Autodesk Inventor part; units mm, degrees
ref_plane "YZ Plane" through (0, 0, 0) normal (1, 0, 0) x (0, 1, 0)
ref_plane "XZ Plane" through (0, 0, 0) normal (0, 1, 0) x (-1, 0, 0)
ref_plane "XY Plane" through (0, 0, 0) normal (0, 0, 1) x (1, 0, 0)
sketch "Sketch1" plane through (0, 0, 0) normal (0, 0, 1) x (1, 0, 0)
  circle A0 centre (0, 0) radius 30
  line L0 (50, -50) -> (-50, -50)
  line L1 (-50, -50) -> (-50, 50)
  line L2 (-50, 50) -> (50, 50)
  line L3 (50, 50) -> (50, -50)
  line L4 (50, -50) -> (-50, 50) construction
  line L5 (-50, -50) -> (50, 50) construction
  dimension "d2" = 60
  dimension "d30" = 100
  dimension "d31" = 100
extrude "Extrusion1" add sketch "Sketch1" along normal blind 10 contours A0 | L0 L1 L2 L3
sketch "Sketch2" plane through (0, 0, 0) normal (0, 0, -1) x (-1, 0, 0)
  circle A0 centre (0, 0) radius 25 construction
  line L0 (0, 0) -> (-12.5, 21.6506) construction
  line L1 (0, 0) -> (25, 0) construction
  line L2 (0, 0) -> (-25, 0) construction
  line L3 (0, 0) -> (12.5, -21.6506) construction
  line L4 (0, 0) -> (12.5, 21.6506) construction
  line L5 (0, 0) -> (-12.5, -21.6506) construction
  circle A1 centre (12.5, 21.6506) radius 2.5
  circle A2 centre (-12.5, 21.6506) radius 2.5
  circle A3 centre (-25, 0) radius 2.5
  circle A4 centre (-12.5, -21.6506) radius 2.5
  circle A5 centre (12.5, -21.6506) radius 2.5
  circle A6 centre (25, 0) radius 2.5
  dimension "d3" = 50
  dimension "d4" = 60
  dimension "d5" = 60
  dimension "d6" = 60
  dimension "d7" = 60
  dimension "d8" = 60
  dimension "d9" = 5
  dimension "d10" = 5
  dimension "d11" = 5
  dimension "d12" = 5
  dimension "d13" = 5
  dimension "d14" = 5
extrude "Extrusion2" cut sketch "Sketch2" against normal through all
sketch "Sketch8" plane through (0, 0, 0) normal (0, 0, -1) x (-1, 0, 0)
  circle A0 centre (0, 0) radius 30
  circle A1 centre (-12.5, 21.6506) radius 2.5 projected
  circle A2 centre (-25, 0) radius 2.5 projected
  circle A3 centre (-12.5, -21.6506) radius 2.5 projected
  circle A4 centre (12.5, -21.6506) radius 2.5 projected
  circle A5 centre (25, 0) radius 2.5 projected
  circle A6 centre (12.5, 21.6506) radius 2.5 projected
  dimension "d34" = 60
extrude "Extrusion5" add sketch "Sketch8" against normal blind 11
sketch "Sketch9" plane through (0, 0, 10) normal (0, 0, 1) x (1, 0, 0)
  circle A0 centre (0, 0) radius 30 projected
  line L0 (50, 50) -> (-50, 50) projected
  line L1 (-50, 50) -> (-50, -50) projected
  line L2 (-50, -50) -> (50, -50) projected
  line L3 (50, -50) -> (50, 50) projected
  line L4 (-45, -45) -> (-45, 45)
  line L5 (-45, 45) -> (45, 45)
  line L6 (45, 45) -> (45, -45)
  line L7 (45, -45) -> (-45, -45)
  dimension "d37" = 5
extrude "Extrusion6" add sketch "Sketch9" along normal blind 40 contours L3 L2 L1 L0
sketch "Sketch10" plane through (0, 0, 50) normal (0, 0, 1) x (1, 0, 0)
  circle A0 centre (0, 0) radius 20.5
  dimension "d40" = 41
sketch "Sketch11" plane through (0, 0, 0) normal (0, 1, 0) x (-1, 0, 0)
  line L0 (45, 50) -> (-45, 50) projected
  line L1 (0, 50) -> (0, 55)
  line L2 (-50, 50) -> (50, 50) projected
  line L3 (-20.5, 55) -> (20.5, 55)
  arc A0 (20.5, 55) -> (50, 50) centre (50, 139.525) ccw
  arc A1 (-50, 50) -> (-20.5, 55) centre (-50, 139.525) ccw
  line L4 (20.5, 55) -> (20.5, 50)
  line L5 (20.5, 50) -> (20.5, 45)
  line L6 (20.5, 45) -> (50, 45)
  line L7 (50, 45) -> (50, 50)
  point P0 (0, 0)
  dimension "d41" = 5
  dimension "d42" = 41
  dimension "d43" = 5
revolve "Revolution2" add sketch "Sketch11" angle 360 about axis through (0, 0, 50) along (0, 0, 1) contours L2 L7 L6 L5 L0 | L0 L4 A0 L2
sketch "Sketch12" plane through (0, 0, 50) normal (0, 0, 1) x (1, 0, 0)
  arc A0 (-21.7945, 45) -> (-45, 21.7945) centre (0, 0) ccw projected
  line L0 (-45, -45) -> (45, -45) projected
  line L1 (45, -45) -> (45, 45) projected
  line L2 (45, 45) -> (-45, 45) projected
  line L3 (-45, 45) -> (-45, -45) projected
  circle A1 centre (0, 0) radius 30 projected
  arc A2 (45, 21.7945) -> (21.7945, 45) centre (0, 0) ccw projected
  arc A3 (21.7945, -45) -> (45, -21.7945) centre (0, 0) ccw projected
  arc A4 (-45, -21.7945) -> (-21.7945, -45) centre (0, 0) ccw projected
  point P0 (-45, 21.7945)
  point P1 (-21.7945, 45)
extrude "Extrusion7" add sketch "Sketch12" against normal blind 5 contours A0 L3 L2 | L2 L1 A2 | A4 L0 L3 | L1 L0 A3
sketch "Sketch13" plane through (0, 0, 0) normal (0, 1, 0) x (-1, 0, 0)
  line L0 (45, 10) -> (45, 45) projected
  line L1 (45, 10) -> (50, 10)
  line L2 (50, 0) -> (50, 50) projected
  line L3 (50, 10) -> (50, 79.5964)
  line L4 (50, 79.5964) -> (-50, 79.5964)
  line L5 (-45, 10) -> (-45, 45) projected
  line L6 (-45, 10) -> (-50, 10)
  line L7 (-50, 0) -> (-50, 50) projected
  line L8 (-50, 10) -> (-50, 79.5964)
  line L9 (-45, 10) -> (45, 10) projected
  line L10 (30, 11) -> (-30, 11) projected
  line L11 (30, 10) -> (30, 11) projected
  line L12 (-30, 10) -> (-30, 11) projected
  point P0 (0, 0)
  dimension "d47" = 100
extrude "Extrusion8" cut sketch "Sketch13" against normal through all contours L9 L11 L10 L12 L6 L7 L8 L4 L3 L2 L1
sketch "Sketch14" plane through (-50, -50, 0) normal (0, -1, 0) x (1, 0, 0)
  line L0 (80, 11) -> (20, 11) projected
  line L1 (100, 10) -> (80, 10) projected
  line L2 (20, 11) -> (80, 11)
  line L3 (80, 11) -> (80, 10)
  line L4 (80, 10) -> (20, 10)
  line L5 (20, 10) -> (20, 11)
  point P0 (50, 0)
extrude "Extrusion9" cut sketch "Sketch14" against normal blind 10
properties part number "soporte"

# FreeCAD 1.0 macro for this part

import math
import FreeCAD as App
import Part
import Sketcher


def add_polygon(sketch, points):
    """Adds a closed chain of lines whose ends are joined by coincident constraints."""
    first, n = sketch.GeometryCount, len(points)
    for a, b in zip(points, points[1:] + points[:1]):
        sketch.addGeometry(Part.LineSegment(App.Vector(*a, 0), App.Vector(*b, 0)), False)
    for i in range(n):
        sketch.addConstraint(Sketcher.Constraint("Coincident", first + i, 2, first + (i + 1) % n, 1))

doc = App.newDocument("Part")
body = doc.addObject("PartDesign::Body", "Body")

# Sketch on XY plane
sketch1 = body.newObject("Sketcher::SketchObject", "Sketch")
sketch1.AttachmentSupport = (doc.getObject("XY_Plane"), [""])
sketch1.MapMode = "FlatFace"
add_polygon(sketch1, [(-50, -50), (50, -50), (50, 50), (-50, 50)])  # lines 0-3
sketch1.addConstraint([
    Sketcher.Constraint("Horizontal", 0),
    Sketcher.Constraint("Vertical", 1),
    Sketcher.Constraint("Horizontal", 2),
    Sketcher.Constraint("Vertical", 3),
    Sketcher.Constraint("Symmetric", 0, 2, 2, 2, -1, 1),
    Sketcher.Constraint("Equal", 2, 1),
    Sketcher.Constraint("DistanceX", 0, 1, 0, 2, 100.0),
])
pad1 = body.newObject("PartDesign::Pad", "Pad")
pad1.Profile = sketch1
pad1.Length = 10

# Sketch on XY plane
sketch2 = body.newObject("Sketcher::SketchObject", "Sketch001")
sketch2.AttachmentSupport = (doc.getObject("XY_Plane"), [""])
sketch2.MapMode = "FlatFace"
sketch2.addGeometry([
    Part.Circle(App.Vector(-12.5, 21.7, 0), App.Vector(0, 0, 1), 2.5),  # 0
    Part.Circle(App.Vector(12.5, 21.7, 0), App.Vector(0, 0, 1), 2.5),  # 1
    Part.Circle(App.Vector(25, 0, 0), App.Vector(0, 0, 1), 2.5),  # 2
    Part.Circle(App.Vector(12.5, -21.7, 0), App.Vector(0, 0, 1), 2.5),  # 3
    Part.Circle(App.Vector(-12.5, -21.7, 0), App.Vector(0, 0, 1), 2.5),  # 4
    Part.Circle(App.Vector(-25, 0, 0), App.Vector(0, 0, 1), 2.5),  # 5
], False)
sketch2.addConstraint([
    Sketcher.Constraint("Equal", 0, 1),
    Sketcher.Constraint("Equal", 1, 2),
    Sketcher.Constraint("Equal", 2, 3),
    Sketcher.Constraint("Equal", 3, 4),
    Sketcher.Constraint("Equal", 4, 5),
    Sketcher.Constraint("Symmetric", 0, 3, 3, 3, -1, 1),
    Sketcher.Constraint("Symmetric", 1, 3, 4, 3, -1, 1),
    Sketcher.Constraint("Symmetric", 2, 3, 5, 3, -1, 1),
    Sketcher.Constraint("Symmetric", 0, 3, 1, 3, -2),
    Sketcher.Constraint("PointOnObject", 2, 3, -1),
    Sketcher.Constraint("Diameter", 0, 5.0),
    Sketcher.Constraint("DistanceX", 5, 3, 2, 3, 50.0),
    Sketcher.Constraint("DistanceX", 0, 3, 1, 3, 25.0),
    Sketcher.Constraint("DistanceY", -1, 1, 0, 3, 21.6506),
])
pocket1 = body.newObject("PartDesign::Pocket", "Pocket")
pocket1.Profile = sketch2
pocket1.Type = "ThroughAll"
pocket1.Reversed = True

# Sketch on XY plane
sketch3 = body.newObject("Sketcher::SketchObject", "Sketch002")
sketch3.AttachmentSupport = (doc.getObject("XY_Plane"), [""])
sketch3.MapMode = "FlatFace"
sketch3.addGeometry([
    Part.Circle(App.Vector(0, 0, 0), App.Vector(0, 0, 1), 30),  # 0
    Part.Circle(App.Vector(12.5, -21.7, 0), App.Vector(0, 0, 1), 2.5),  # 1
    Part.Circle(App.Vector(-12.5, -21.7, 0), App.Vector(0, 0, 1), 2.5),  # 2
    Part.Circle(App.Vector(25, 0, 0), App.Vector(0, 0, 1), 2.5),  # 3
    Part.Circle(App.Vector(12.5, 21.7, 0), App.Vector(0, 0, 1), 2.5),  # 4
    Part.Circle(App.Vector(-25, 0, 0), App.Vector(0, 0, 1), 2.5),  # 5
    Part.Circle(App.Vector(-12.5, 21.7, 0), App.Vector(0, 0, 1), 2.5),  # 6
], False)
sketch3.addConstraint([
    Sketcher.Constraint("Coincident", 0, 3, -1, 1),
    Sketcher.Constraint("Equal", 1, 2),
    Sketcher.Constraint("Equal", 2, 3),
    Sketcher.Constraint("Equal", 3, 4),
    Sketcher.Constraint("Equal", 4, 5),
    Sketcher.Constraint("Equal", 5, 6),
    Sketcher.Constraint("Symmetric", 2, 3, 4, 3, -1, 1),
    Sketcher.Constraint("Symmetric", 3, 3, 5, 3, -1, 1),
    Sketcher.Constraint("Symmetric", 1, 3, 6, 3, -1, 1),
    Sketcher.Constraint("Symmetric", 1, 3, 2, 3, -2),
    Sketcher.Constraint("PointOnObject", 3, 3, -1),
    Sketcher.Constraint("Diameter", 0, 60.0),
    Sketcher.Constraint("Diameter", 1, 5.0),
    Sketcher.Constraint("DistanceX", -1, 1, 3, 3, 25.0),
    Sketcher.Constraint("DistanceX", 2, 3, 1, 3, 25.0),
    Sketcher.Constraint("DistanceY", 1, 3, -1, 1, 21.6506),
])
pad2 = body.newObject("PartDesign::Pad", "Pad001")
pad2.Profile = sketch3
pad2.Length = 11

# Sketch on XY plane
sketch4 = body.newObject("Sketcher::SketchObject", "Sketch003")
sketch4.AttachmentSupport = (doc.getObject("XY_Plane"), [""])
sketch4.MapMode = "FlatFace"
sketch4.AttachmentOffset = App.Placement(App.Vector(0, 0, 10), App.Rotation())
add_polygon(sketch4, [(50, -50), (50, 50), (-50, 50), (-50, -50)])  # lines 0-3
add_polygon(sketch4, [(45, -45), (-45, -45), (-45, 45), (45, 45)])  # lines 4-7
sketch4.addConstraint([
    Sketcher.Constraint("Vertical", 0),
    Sketcher.Constraint("Horizontal", 1),
    Sketcher.Constraint("Vertical", 2),
    Sketcher.Constraint("Horizontal", 3),
    Sketcher.Constraint("Horizontal", 4),
    Sketcher.Constraint("Vertical", 5),
    Sketcher.Constraint("Horizontal", 6),
    Sketcher.Constraint("Vertical", 7),
    Sketcher.Constraint("Symmetric", 0, 2, 2, 2, -1, 1),
    Sketcher.Constraint("Symmetric", 4, 2, 6, 2, -1, 1),
    Sketcher.Constraint("Equal", 3, 0),
    Sketcher.Constraint("Equal", 6, 5),
    Sketcher.Constraint("DistanceX", 2, 2, 4, 2, 5.0),
    Sketcher.Constraint("DistanceX", 1, 2, 1, 1, 100.0),
])
pad3 = body.newObject("PartDesign::Pad", "Pad002")
pad3.Profile = sketch4
pad3.Length = 40

# Sketch on XZ plane
sketch5 = body.newObject("Sketcher::SketchObject", "Sketch004")
sketch5.AttachmentSupport = (doc.getObject("XZ_Plane"), [""])
sketch5.MapMode = "FlatFace"
sketch5.addGeometry([
    Part.LineSegment(App.Vector(-50, 45, 0), App.Vector(-50, 50, 0)),
    Part.ArcOfCircle(Part.Circle(App.Vector(-50, 140, 0), App.Vector(0, 0, 1), 90), math.radians(-90), math.radians(-70.76)),
    Part.LineSegment(App.Vector(-20, 55, 0), App.Vector(-20, 45, 0)),
    Part.LineSegment(App.Vector(-20, 45, 0), App.Vector(-50, 45, 0)),
], False)
sketch5.addConstraint([
    Sketcher.Constraint("Coincident", 0, 2, 1, 1),
    Sketcher.Constraint("Coincident", 1, 2, 2, 1),
    Sketcher.Constraint("Coincident", 2, 2, 3, 1),
    Sketcher.Constraint("Coincident", 3, 2, 0, 1),
    Sketcher.Constraint("Vertical", 0),
    Sketcher.Constraint("Vertical", 2),
    Sketcher.Constraint("Horizontal", 3),
    Sketcher.Constraint("Vertical", 1, 3, 0, 2),
    Sketcher.Constraint("DistanceY", 0, 1, 0, 2, 5.0),
    Sketcher.Constraint("DistanceY", 0, 2, 1, 2, 5.0),
    Sketcher.Constraint("DistanceX", 3, 2, 3, 1, 29.5),
    Sketcher.Constraint("DistanceX", 1, 3, -1, 1, 50.0),
    Sketcher.Constraint("DistanceY", -1, 1, 0, 2, 50.0),
])
revolution = body.newObject("PartDesign::Revolution", "Revolution")
revolution.Profile = sketch5
revolution.ReferenceAxis = (sketch5, ["V_Axis"])
revolution.Angle = 360

# Sketch on XY plane
sketch6 = body.newObject("Sketcher::SketchObject", "Sketch005")
sketch6.AttachmentSupport = (doc.getObject("XY_Plane"), [""])
sketch6.MapMode = "FlatFace"
sketch6.AttachmentOffset = App.Placement(App.Vector(0, 0, 50), App.Rotation())
sketch6.addGeometry([
    Part.ArcOfCircle(Part.Circle(App.Vector(0, 0, 0), App.Vector(0, 0, 1), 50), math.radians(116), math.radians(154)),  # 0
    Part.LineSegment(App.Vector(-22, 45, 0), App.Vector(-45, 45, 0)),  # 1
    Part.LineSegment(App.Vector(-45, 45, 0), App.Vector(-45, 22, 0)),  # 2
    Part.LineSegment(App.Vector(45, 45, 0), App.Vector(22, 45, 0)),  # 3
    Part.ArcOfCircle(Part.Circle(App.Vector(0, 0, 0), App.Vector(0, 0, 1), 50), math.radians(26), math.radians(64)),  # 4
    Part.LineSegment(App.Vector(45, 22, 0), App.Vector(45, 45, 0)),  # 5
    Part.ArcOfCircle(Part.Circle(App.Vector(0, 0, 0), App.Vector(0, 0, 1), 50), math.radians(-154), math.radians(-116)),  # 6
    Part.LineSegment(App.Vector(-45, -22, 0), App.Vector(-45, -45, 0)),  # 7
    Part.LineSegment(App.Vector(-45, -45, 0), App.Vector(-22, -45, 0)),  # 8
    Part.LineSegment(App.Vector(45, -45, 0), App.Vector(45, -22, 0)),  # 9
    Part.ArcOfCircle(Part.Circle(App.Vector(0, 0, 0), App.Vector(0, 0, 1), 50), math.radians(-64), math.radians(-26)),  # 10
    Part.LineSegment(App.Vector(22, -45, 0), App.Vector(45, -45, 0)),  # 11
], False)
sketch6.addConstraint([
    Sketcher.Constraint("Coincident", 0, 1, 1, 1),
    Sketcher.Constraint("Coincident", 1, 2, 2, 1),
    Sketcher.Constraint("Coincident", 2, 2, 0, 2),
    Sketcher.Constraint("Coincident", 3, 2, 4, 2),
    Sketcher.Constraint("Coincident", 4, 1, 5, 1),
    Sketcher.Constraint("Coincident", 5, 2, 3, 1),
    Sketcher.Constraint("Coincident", 6, 1, 7, 1),
    Sketcher.Constraint("Coincident", 7, 2, 8, 1),
    Sketcher.Constraint("Coincident", 8, 2, 6, 2),
    Sketcher.Constraint("Coincident", 9, 2, 10, 2),
    Sketcher.Constraint("Coincident", 10, 1, 11, 1),
    Sketcher.Constraint("Coincident", 11, 2, 9, 1),
    Sketcher.Constraint("Horizontal", 1),
    Sketcher.Constraint("Vertical", 2),
    Sketcher.Constraint("Horizontal", 3),
    Sketcher.Constraint("Vertical", 5),
    Sketcher.Constraint("Vertical", 7),
    Sketcher.Constraint("Horizontal", 8),
    Sketcher.Constraint("Vertical", 9),
    Sketcher.Constraint("Horizontal", 11),
    Sketcher.Constraint("Coincident", 0, 3, -1, 1),
    Sketcher.Constraint("Coincident", 4, 3, -1, 1),
    Sketcher.Constraint("Coincident", 6, 3, -1, 1),
    Sketcher.Constraint("Coincident", 10, 3, -1, 1),
    Sketcher.Constraint("Equal", 0, 4),
    Sketcher.Constraint("Equal", 4, 6),
    Sketcher.Constraint("Equal", 6, 10),
    Sketcher.Constraint("Symmetric", 5, 2, 7, 2, -1, 1),
    Sketcher.Constraint("Symmetric", 1, 2, 11, 2, -1, 1),
    Sketcher.Constraint("Symmetric", 1, 2, 5, 2, -2),
    Sketcher.Constraint("Equal", 11, 2),
    Sketcher.Constraint("Radius", 0, 50.0),
    Sketcher.Constraint("DistanceY", -1, 1, 0, 1, 45.0),
])
pad4 = body.newObject("PartDesign::Pad", "Pad003")
pad4.Profile = sketch6
pad4.Length = 5
pad4.Reversed = True

# Sketch on XZ plane
sketch7 = body.newObject("Sketcher::SketchObject", "Sketch006")
sketch7.AttachmentSupport = (doc.getObject("XZ_Plane"), [""])
sketch7.MapMode = "FlatFace"
add_polygon(sketch7, [(-30, 10), (-50, 10), (-50, 79.6), (50, 79.6), (50, 10), (30, 10), (30, 11), (-30, 11)])  # lines 0-7
sketch7.addConstraint([
    Sketcher.Constraint("Horizontal", 0),
    Sketcher.Constraint("Vertical", 1),
    Sketcher.Constraint("Horizontal", 2),
    Sketcher.Constraint("Vertical", 3),
    Sketcher.Constraint("Horizontal", 4),
    Sketcher.Constraint("Vertical", 5),
    Sketcher.Constraint("Horizontal", 6),
    Sketcher.Constraint("Vertical", 7),
    Sketcher.Constraint("Symmetric", 0, 2, 3, 2, -2),
    Sketcher.Constraint("Equal", 0, 4),
    Sketcher.Constraint("DistanceX", 2, 1, 2, 2, 100.0),
    Sketcher.Constraint("DistanceX", 0, 2, 0, 1, 20.0),
    Sketcher.Constraint("DistanceY", 5, 1, 5, 2, 1.0),
    Sketcher.Constraint("DistanceY", -1, 1, 0, 2, 10.0),
    Sketcher.Constraint("DistanceY", 1, 1, 1, 2, 69.5964),
])
pocket2 = body.newObject("PartDesign::Pocket", "Pocket001")
pocket2.Profile = sketch7
pocket2.Type = "ThroughAll"
pocket2.Reversed = True

# Sketch on XZ plane
sketch8 = body.newObject("Sketcher::SketchObject", "Sketch007")
sketch8.AttachmentSupport = (doc.getObject("XZ_Plane"), [""])
sketch8.MapMode = "FlatFace"
sketch8.AttachmentOffset = App.Placement(App.Vector(0, 0, 50), App.Rotation())
add_polygon(sketch8, [(30, 10), (30, 11), (-30, 11), (-30, 10)])  # lines 0-3
sketch8.addConstraint([
    Sketcher.Constraint("Vertical", 0),
    Sketcher.Constraint("Horizontal", 1),
    Sketcher.Constraint("Vertical", 2),
    Sketcher.Constraint("Horizontal", 3),
    Sketcher.Constraint("DistanceX", 1, 2, 1, 1, 60.0),
    Sketcher.Constraint("DistanceY", 0, 1, 0, 2, 1.0),
    Sketcher.Constraint("DistanceX", -1, 1, 0, 2, 30.0),
    Sketcher.Constraint("DistanceY", -1, 1, 0, 2, 11.0),
])
pocket3 = body.newObject("PartDesign::Pocket", "Pocket002")
pocket3.Profile = sketch8
pocket3.Length = 10

doc.recompute()
